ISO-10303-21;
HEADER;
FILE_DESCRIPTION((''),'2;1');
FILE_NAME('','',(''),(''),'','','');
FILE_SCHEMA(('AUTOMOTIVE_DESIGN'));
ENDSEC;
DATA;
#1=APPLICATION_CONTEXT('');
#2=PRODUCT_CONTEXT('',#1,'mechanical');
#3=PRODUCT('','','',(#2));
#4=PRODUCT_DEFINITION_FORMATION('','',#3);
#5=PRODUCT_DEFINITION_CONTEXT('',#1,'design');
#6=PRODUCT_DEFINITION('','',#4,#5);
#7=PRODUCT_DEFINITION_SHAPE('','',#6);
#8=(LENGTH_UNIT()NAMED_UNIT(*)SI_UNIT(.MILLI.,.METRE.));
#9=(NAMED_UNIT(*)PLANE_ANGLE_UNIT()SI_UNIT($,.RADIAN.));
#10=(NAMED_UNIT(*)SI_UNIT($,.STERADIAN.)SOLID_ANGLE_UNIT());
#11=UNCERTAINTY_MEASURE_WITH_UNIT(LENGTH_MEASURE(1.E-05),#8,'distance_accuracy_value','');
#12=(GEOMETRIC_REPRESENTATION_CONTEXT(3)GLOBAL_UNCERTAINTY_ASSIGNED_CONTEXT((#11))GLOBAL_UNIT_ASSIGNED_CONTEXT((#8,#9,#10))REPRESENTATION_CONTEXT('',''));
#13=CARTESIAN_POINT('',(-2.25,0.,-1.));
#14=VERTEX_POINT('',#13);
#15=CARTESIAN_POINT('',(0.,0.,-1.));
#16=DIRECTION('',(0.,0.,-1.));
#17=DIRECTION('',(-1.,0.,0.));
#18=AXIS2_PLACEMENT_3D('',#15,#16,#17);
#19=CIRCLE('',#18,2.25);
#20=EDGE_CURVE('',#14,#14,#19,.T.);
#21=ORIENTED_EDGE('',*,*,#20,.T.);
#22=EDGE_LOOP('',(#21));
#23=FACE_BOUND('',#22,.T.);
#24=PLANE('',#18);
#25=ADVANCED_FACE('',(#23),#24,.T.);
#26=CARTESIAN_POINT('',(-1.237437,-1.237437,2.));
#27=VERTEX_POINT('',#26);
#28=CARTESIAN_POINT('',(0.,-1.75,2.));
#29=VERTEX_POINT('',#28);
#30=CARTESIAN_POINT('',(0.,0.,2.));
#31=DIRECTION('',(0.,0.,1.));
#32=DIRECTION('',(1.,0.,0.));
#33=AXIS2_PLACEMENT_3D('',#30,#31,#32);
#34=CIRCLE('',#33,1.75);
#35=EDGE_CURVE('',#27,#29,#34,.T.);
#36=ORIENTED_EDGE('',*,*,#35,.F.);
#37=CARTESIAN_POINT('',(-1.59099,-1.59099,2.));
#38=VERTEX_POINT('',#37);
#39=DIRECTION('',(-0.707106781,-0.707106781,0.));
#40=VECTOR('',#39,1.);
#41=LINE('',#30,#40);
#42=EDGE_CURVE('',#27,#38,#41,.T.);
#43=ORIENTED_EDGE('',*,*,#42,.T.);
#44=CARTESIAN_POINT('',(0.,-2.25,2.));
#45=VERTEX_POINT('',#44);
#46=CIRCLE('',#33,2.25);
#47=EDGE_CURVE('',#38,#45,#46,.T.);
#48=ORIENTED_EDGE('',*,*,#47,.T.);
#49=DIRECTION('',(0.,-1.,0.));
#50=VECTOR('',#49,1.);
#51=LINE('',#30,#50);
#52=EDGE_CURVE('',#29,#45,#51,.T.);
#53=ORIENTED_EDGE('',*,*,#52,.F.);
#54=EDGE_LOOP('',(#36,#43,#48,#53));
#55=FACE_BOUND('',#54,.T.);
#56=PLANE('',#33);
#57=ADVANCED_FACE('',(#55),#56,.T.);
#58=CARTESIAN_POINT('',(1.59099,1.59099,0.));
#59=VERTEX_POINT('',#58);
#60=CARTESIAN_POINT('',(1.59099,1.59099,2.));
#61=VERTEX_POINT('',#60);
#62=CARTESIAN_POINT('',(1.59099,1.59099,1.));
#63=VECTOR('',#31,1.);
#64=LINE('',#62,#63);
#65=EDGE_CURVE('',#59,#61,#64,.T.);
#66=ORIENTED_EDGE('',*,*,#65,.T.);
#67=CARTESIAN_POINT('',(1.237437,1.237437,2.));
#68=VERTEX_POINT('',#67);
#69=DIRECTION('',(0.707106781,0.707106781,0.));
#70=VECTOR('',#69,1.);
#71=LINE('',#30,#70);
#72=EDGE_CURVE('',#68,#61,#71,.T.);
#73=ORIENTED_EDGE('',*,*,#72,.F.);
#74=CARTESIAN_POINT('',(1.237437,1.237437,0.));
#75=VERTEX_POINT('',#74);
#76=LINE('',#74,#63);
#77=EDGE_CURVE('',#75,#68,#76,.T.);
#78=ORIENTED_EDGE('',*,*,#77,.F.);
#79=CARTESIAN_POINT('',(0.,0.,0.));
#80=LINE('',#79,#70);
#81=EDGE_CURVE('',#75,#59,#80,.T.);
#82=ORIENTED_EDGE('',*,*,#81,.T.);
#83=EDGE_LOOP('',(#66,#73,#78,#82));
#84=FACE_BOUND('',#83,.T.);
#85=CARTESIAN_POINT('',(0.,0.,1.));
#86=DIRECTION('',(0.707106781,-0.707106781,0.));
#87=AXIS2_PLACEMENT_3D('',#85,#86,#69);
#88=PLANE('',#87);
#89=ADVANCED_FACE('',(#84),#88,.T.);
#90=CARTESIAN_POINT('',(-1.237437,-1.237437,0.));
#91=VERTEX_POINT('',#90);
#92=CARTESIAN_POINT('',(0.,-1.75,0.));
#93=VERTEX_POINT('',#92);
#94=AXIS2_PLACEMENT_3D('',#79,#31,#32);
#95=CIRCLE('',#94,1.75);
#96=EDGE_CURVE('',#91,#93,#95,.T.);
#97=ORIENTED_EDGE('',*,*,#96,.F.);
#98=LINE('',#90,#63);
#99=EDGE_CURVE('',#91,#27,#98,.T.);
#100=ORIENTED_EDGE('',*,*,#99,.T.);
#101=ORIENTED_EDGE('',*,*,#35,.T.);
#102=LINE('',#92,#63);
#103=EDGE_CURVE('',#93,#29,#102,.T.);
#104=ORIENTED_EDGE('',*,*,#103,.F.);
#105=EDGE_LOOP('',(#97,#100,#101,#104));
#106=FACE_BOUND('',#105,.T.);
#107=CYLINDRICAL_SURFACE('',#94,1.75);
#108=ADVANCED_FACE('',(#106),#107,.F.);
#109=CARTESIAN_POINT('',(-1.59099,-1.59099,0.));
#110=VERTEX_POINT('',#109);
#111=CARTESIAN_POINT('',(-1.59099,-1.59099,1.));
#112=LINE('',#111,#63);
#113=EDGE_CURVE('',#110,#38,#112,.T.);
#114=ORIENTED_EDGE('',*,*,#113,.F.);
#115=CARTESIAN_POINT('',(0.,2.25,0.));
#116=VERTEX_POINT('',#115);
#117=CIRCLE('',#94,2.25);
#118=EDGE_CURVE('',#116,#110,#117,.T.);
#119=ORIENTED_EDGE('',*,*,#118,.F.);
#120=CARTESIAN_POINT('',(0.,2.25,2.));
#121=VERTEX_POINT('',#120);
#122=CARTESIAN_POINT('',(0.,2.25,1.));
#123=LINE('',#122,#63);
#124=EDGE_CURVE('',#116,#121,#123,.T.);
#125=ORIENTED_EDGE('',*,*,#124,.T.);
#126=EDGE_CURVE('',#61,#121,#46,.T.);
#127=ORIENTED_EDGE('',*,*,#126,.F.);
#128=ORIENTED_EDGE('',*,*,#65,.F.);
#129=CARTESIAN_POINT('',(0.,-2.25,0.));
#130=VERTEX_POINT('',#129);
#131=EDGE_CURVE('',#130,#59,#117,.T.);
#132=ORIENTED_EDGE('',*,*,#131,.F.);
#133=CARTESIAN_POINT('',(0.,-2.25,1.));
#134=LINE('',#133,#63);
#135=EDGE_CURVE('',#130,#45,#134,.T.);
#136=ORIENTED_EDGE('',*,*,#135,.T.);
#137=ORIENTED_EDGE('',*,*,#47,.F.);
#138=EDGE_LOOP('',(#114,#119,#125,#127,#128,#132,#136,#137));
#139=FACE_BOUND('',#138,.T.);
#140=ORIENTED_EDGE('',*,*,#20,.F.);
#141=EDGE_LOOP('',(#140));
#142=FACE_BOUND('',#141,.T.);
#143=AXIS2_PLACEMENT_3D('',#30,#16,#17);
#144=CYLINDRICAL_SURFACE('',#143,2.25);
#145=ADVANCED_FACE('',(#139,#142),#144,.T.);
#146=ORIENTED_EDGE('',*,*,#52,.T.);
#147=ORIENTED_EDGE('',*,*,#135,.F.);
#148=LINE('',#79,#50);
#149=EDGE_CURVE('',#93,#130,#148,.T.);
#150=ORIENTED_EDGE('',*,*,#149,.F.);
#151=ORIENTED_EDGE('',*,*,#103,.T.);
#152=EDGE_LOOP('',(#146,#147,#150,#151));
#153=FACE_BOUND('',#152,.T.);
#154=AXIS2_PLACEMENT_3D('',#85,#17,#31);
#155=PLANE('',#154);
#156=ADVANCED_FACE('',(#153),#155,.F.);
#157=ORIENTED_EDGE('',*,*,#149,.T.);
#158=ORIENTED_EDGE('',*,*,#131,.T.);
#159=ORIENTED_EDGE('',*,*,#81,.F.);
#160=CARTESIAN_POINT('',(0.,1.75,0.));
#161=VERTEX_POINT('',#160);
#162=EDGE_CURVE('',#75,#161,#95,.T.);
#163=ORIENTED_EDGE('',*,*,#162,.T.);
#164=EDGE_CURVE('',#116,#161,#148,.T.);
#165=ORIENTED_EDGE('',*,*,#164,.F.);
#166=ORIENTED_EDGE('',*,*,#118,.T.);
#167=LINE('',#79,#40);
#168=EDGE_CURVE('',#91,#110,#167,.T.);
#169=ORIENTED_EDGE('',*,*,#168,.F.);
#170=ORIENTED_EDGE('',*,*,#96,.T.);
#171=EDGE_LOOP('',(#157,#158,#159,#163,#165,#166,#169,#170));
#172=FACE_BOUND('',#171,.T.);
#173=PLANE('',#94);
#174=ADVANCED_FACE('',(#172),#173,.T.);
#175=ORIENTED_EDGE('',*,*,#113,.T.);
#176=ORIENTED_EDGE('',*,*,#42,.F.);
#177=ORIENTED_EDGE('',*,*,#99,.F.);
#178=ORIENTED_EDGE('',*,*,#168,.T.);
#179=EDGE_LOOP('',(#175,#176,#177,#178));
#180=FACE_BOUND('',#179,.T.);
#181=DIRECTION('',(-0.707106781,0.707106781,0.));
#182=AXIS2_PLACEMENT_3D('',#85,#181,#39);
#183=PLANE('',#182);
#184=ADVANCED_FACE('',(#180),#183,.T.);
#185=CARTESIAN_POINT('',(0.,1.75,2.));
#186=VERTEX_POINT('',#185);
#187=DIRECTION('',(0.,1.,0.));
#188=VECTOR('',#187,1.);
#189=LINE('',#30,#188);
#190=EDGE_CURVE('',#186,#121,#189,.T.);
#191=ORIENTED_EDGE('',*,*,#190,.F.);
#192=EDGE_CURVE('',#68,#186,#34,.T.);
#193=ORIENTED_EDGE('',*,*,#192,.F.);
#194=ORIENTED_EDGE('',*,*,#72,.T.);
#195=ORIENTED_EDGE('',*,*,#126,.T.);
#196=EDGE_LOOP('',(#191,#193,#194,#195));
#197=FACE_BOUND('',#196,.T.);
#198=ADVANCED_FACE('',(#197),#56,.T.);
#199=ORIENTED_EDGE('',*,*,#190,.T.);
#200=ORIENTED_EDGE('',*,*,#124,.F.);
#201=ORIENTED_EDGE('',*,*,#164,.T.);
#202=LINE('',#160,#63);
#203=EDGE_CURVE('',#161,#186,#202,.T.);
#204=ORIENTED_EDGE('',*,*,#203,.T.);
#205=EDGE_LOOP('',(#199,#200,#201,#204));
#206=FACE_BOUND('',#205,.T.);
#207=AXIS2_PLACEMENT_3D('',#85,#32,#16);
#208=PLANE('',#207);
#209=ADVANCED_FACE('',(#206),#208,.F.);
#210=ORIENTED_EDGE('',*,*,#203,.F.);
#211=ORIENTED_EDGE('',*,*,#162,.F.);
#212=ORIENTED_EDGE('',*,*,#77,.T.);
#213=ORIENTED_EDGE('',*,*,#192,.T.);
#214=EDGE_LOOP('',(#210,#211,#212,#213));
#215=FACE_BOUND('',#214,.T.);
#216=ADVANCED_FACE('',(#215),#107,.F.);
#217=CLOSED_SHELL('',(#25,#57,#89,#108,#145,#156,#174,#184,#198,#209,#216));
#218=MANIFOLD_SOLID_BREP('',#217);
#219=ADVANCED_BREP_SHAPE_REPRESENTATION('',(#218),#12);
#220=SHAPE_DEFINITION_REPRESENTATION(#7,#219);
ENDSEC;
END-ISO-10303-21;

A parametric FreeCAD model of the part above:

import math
import FreeCAD as App
import Part
import Sketcher

V = App.Vector
Q = App.Units.Quantity


def faces_at(feature, points):
    """Names of the faces that lie closest to the given points."""
    faces = feature.Shape.Faces
    near = lambda p: min(range(len(faces)), key=lambda i: faces[i].distToShape(Part.Vertex(*p))[0])
    return sorted({f"Face{near(p) + 1}" for p in points})

doc = App.newDocument("Part")
body = doc.addObject("PartDesign::Body", "Body")

sketch1 = body.newObject("Sketcher::SketchObject", "Sketch")
sketch1.AttachmentSupport = (doc.getObject("XY_Plane"), [""])
sketch1.MapMode = "FlatFace"
sketch1.addGeometry(Part.Circle(V(0, 0, 0), V(0, 0, 1), 2.2), False)
sketch1.addConstraint(Sketcher.Constraint("Coincident", 0, 3, -1, 1))
sketch1.addConstraint(Sketcher.Constraint("Diameter", 0, Q("4.5 mm")))
pad1 = body.newObject("PartDesign::Pad", "Pad")
pad1.Profile = sketch1
pad1.Length = 2
doc.recompute()

thickness = body.newObject("PartDesign::Thickness", "Thickness")
thickness.Base = (pad1, faces_at(pad1, [(0, 0, 2)]))
thickness.Value = 1
thickness.Reversed = True
thickness.Join = "Intersection"

sketch2 = body.newObject("Sketcher::SketchObject", "Sketch001")
sketch2.AttachmentSupport = (doc.getObject("XY_Plane"), [""])
sketch2.MapMode = "FlatFace"
sketch2.AttachmentOffset = App.Placement(V(0, 0, 1), App.Rotation())
sketch2.addGeometry(Part.ArcOfCircle(Part.Circle(V(0, 0, 0), V(0, 0, 1), 1.2), math.radians(90), math.radians(225)), False)
sketch2.addGeometry(Part.LineSegment(V(0, 1.2, 0), V(0, 2.2, 0)), False)
sketch2.addGeometry(Part.ArcOfCircle(Part.Circle(V(0, 0, 0), V(0, 0, 1), 2.2), math.radians(90), math.radians(225)), False)
sketch2.addGeometry(Part.LineSegment(V(-1.6, -1.6, 0), V(-0.9, -0.9, 0)), False)
sketch2.addGeometry(Part.LineSegment(V(1.6, 1.6, 0), V(0.9, 0.9, 0)), False)
sketch2.addGeometry(Part.ArcOfCircle(Part.Circle(V(0, 0, 0), V(0, 0, 1), 1.2), math.radians(0), math.radians(45)), False)
sketch2.addGeometry(Part.ArcOfCircle(Part.Circle(V(0, 0, 0), V(0, 0, 1), 1.3), math.radians(-90), math.radians(0)), False)
sketch2.addGeometry(Part.LineSegment(V(0, -1.2, 0), V(0, -2.2, 0)), False)
sketch2.addGeometry(Part.ArcOfCircle(Part.Circle(V(0, 0, 0), V(0, 0, 1), 2.2), math.radians(-90), math.radians(0)), False)
sketch2.addGeometry(Part.ArcOfCircle(Part.Circle(V(0, 0, 0), V(0, 0, 1), 2.3), math.radians(0), math.radians(45)), False)
sketch2.addConstraint(Sketcher.Constraint("Coincident", 0, 1, 1, 1))
sketch2.addConstraint(Sketcher.Constraint("Coincident", 1, 2, 2, 1))
sketch2.addConstraint(Sketcher.Constraint("Coincident", 2, 2, 3, 1))
sketch2.addConstraint(Sketcher.Constraint("Coincident", 3, 2, 0, 2))
sketch2.addConstraint(Sketcher.Constraint("Coincident", 4, 2, 5, 2))
sketch2.addConstraint(Sketcher.Constraint("Tangent", 5, 1, 6, 2))
sketch2.addConstraint(Sketcher.Constraint("Coincident", 6, 1, 7, 1))
sketch2.addConstraint(Sketcher.Constraint("Coincident", 7, 2, 8, 1))
sketch2.addConstraint(Sketcher.Constraint("Tangent", 8, 2, 9, 1))
sketch2.addConstraint(Sketcher.Constraint("Coincident", 9, 2, 4, 1))
sketch2.addConstraint(Sketcher.Constraint("Vertical", 1))
sketch2.addConstraint(Sketcher.Constraint("Vertical", 7))
sketch2.addConstraint(Sketcher.Constraint("Coincident", 0, 3, -1, 1))
sketch2.addConstraint(Sketcher.Constraint("Coincident", 2, 3, -1, 1))
sketch2.addConstraint(Sketcher.Constraint("Coincident", 5, 3, -1, 1))
sketch2.addConstraint(Sketcher.Constraint("Coincident", 8, 3, -1, 1))
sketch2.addConstraint(Sketcher.Constraint("Equal", 0, 5))
sketch2.addConstraint(Sketcher.Constraint("Equal", 5, 6))
sketch2.addConstraint(Sketcher.Constraint("Equal", 2, 8))
sketch2.addConstraint(Sketcher.Constraint("Equal", 8, 9))
sketch2.addConstraint(Sketcher.Constraint("PointOnObject", 0, 1, -2))
sketch2.addConstraint(Sketcher.Constraint("PointOnObject", 5, 1, -1))
sketch2.addConstraint(Sketcher.Constraint("PointOnObject", 6, 1, -2))
sketch2.addConstraint(Sketcher.Constraint("PointOnObject", 8, 2, -1))
sketch2.addConstraint(Sketcher.Constraint("Parallel", 3, 4))
sketch2.addConstraint(Sketcher.Constraint("DistanceY", 1, 1, 1, 2, Q("1 mm")))
sketch2.addConstraint(Sketcher.Constraint("Angle", 3, Q("45 deg")))
sketch2.addConstraint(Sketcher.Constraint("Radius", 0, Q("1.25 mm")))
sketch2.addConstraint(Sketcher.Constraint("DistanceX", 2, 2, -1, 1, Q("1.59099 mm")))
sketch2.addConstraint(Sketcher.Constraint("DistanceX", -1, 1, 9, 2, Q("1.59099 mm")))
pocket1 = body.newObject("PartDesign::Pocket", "Pocket")
pocket1.Profile = sketch2
pocket1.Length = 1
pocket1.Reversed = True

sketch3 = body.newObject("Sketcher::SketchObject", "Sketch002")
sketch3.AttachmentSupport = (doc.getObject("XY_Plane"), [""])
sketch3.MapMode = "FlatFace"
sketch3.AttachmentOffset = App.Placement(V(0, 0, -1), App.Rotation())
sketch3.addGeometry(Part.Circle(V(0, 0, 0), V(0, 0, 1), 2.2), False)
sketch3.addConstraint(Sketcher.Constraint("Coincident", 0, 3, -1, 1))
sketch3.addConstraint(Sketcher.Constraint("Diameter", 0, Q("4.5 mm")))
pad2 = body.newObject("PartDesign::Pad", "Pad001")
pad2.Profile = sketch3
pad2.Length = 1

sketch4 = body.newObject("Sketcher::SketchObject", "Sketch003")
sketch4.AttachmentSupport = (doc.getObject("XY_Plane"), [""])
sketch4.MapMode = "FlatFace"
sketch4.addGeometry(Part.LineSegment(V(0, 1.2, 0), V(0, 2.2, 0)), False)
sketch4.addGeometry(Part.ArcOfCircle(Part.Circle(V(0, 0, 0), V(0, 0, 1), 2.2), math.radians(90), math.radians(225)), False)
sketch4.addGeometry(Part.LineSegment(V(-1.6, -1.6, 0), V(-0.9, -0.9, 0)), False)
sketch4.addGeometry(Part.ArcOfCircle(Part.Circle(V(0, 0, 0), V(0, 0, 1), 1.2), math.radians(-135), math.radians(-90)), False)
sketch4.addGeometry(Part.LineSegment(V(0, -1.2, 0), V(0, -2.2, 0)), False)
sketch4.addGeometry(Part.ArcOfCircle(Part.Circle(V(0, 0, 0), V(0, 0, 1), 2.2), math.radians(-90), math.radians(45)), False)
sketch4.addGeometry(Part.LineSegment(V(1.6, 1.6, 0), V(0.9, 0.9, 0)), False)
sketch4.addGeometry(Part.ArcOfCircle(Part.Circle(V(0, 0, 0), V(0, 0, 1), 1.2), math.radians(45), math.radians(90)), False)
sketch4.addConstraint(Sketcher.Constraint("Coincident", 0, 2, 1, 1))
sketch4.addConstraint(Sketcher.Constraint("Coincident", 1, 2, 2, 1))
sketch4.addConstraint(Sketcher.Constraint("Coincident", 2, 2, 3, 1))
sketch4.addConstraint(Sketcher.Constraint("Coincident", 3, 2, 4, 1))
sketch4.addConstraint(Sketcher.Constraint("Coincident", 4, 2, 5, 1))
sketch4.addConstraint(Sketcher.Constraint("Coincident", 5, 2, 6, 1))
sketch4.addConstraint(Sketcher.Constraint("Coincident", 6, 2, 7, 1))
sketch4.addConstraint(Sketcher.Constraint("Coincident", 7, 2, 0, 1))
sketch4.addConstraint(Sketcher.Constraint("Vertical", 0))
sketch4.addConstraint(Sketcher.Constraint("Vertical", 4))
sketch4.addConstraint(Sketcher.Constraint("Coincident", 1, 3, -1, 1))
sketch4.addConstraint(Sketcher.Constraint("Coincident", 3, 3, -1, 1))
sketch4.addConstraint(Sketcher.Constraint("Coincident", 5, 3, -1, 1))
sketch4.addConstraint(Sketcher.Constraint("Coincident", 7, 3, -1, 1))
sketch4.addConstraint(Sketcher.Constraint("Equal", 1, 5))
sketch4.addConstraint(Sketcher.Constraint("Equal", 3, 7))
sketch4.addConstraint(Sketcher.Constraint("PointOnObject", 0, 2, -2))
sketch4.addConstraint(Sketcher.Constraint("PointOnObject", 3, 2, -2))
sketch4.addConstraint(Sketcher.Constraint("Parallel", 2, 6))
sketch4.addConstraint(Sketcher.Constraint("DistanceY", 0, 1, 0, 2, Q("1 mm")))
sketch4.addConstraint(Sketcher.Constraint("Angle", 2, Q("45 deg")))
sketch4.addConstraint(Sketcher.Constraint("Radius", 1, Q("2.25 mm")))
sketch4.addConstraint(Sketcher.Constraint("DistanceX", 1, 2, -1, 1, Q("1.59099 mm")))
sketch4.addConstraint(Sketcher.Constraint("DistanceX", -1, 1, 5, 2, Q("1.59099 mm")))
pocket2 = body.newObject("PartDesign::Pocket", "Pocket001")
pocket2.Profile = sketch4
pocket2.Length = 2
pocket2.Reversed = True

sketch5 = body.newObject("Sketcher::SketchObject", "Sketch004")
sketch5.AttachmentSupport = (doc.getObject("XY_Plane"), [""])
sketch5.MapMode = "FlatFace"
sketch5.AttachmentOffset = App.Placement(V(0, 0, 2), App.Rotation())
sketch5.addGeometry(Part.Circle(V(0, 0, 0), V(0, 0, 1), 1.8), False)
sketch5.addConstraint(Sketcher.Constraint("Coincident", 0, 3, -1, 1))
sketch5.addConstraint(Sketcher.Constraint("Diameter", 0, Q("3.5 mm")))
pocket3 = body.newObject("PartDesign::Pocket", "Pocket002")
pocket3.Profile = sketch5
pocket3.Length = 2

doc.recompute()
